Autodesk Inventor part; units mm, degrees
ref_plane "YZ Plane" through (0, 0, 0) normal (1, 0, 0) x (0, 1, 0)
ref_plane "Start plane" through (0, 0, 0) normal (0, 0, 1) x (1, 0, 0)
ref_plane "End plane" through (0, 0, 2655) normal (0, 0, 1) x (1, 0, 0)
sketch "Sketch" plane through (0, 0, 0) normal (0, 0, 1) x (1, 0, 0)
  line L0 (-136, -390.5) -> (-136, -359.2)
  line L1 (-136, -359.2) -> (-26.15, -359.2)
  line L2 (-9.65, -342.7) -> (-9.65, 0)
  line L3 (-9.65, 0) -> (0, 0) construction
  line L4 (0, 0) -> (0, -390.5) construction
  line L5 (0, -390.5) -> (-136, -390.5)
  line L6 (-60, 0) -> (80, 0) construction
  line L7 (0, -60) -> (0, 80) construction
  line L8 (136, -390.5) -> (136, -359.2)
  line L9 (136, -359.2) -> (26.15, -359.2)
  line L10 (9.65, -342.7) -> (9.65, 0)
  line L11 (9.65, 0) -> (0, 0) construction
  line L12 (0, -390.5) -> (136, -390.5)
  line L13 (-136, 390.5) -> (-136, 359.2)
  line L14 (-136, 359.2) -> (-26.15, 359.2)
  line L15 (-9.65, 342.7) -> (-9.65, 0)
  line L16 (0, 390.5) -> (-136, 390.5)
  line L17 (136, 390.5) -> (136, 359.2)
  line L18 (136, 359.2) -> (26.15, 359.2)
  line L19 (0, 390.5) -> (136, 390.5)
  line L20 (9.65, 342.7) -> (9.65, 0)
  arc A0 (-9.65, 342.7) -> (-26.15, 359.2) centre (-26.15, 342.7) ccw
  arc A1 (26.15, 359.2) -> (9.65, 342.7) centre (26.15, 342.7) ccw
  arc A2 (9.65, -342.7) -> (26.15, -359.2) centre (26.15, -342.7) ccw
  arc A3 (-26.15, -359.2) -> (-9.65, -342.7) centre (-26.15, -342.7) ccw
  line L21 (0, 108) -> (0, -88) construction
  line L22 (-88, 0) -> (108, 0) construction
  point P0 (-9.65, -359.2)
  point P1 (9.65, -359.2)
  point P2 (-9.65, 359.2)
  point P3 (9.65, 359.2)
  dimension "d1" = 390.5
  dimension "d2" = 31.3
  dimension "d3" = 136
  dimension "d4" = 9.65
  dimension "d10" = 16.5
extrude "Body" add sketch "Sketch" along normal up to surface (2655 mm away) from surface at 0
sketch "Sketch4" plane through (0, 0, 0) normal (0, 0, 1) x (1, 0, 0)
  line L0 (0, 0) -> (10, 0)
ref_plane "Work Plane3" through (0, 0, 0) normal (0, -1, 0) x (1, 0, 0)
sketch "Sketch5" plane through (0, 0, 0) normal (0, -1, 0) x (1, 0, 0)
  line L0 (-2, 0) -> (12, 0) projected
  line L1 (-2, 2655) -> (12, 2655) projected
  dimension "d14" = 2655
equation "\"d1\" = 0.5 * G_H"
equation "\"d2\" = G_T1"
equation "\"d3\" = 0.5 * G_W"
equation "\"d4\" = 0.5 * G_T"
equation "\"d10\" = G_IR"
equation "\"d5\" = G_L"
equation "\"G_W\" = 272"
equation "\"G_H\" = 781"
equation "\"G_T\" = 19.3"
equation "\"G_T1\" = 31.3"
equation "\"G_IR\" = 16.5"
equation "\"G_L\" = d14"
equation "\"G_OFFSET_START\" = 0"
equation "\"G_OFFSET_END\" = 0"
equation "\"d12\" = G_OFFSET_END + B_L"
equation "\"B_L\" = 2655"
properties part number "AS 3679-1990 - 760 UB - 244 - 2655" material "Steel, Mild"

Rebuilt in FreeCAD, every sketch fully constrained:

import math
import FreeCAD as App
import Part
import Sketcher
Q = App.Units.Quantity

doc = App.newDocument("Part")
body = doc.addObject("PartDesign::Body", "Body")

sketch1 = body.newObject("Sketcher::SketchObject", "Sketch")
sketch1.AttachmentSupport = (doc.getObject("XY_Plane"), [""])
sketch1.MapMode = "FlatFace"
sketch1.addGeometry([
    Part.LineSegment(App.Vector(-136, -359, 0), App.Vector(-136, -390, 0)),
    Part.LineSegment(App.Vector(-136, -390, 0), App.Vector(136, -390, 0)),
    Part.LineSegment(App.Vector(136, -390, 0), App.Vector(136, -359, 0)),
    Part.LineSegment(App.Vector(136, -359, 0), App.Vector(26, -359, 0)),
    Part.ArcOfCircle(Part.Circle(App.Vector(26, -343, 0), App.Vector(0, 0, 1), 16), math.radians(180), math.radians(270)),
    Part.LineSegment(App.Vector(10, -343, 0), App.Vector(10, 343, 0)),
    Part.ArcOfCircle(Part.Circle(App.Vector(26, 343, 0), App.Vector(0, 0, 1), 16), math.radians(90), math.radians(180)),
    Part.LineSegment(App.Vector(26, 359, 0), App.Vector(136, 359, 0)),
    Part.LineSegment(App.Vector(136, 359, 0), App.Vector(136, 390, 0)),
    Part.LineSegment(App.Vector(136, 390, 0), App.Vector(-136, 390, 0)),
    Part.LineSegment(App.Vector(-136, 390, 0), App.Vector(-136, 359, 0)),
    Part.LineSegment(App.Vector(-136, 359, 0), App.Vector(-26, 359, 0)),
    Part.ArcOfCircle(Part.Circle(App.Vector(-26, 343, 0), App.Vector(0, 0, 1), 16), math.radians(0), math.radians(90)),
    Part.LineSegment(App.Vector(-10, 343, 0), App.Vector(-10, -343, 0)),
    Part.ArcOfCircle(Part.Circle(App.Vector(-26, -343, 0), App.Vector(0, 0, 1), 16), math.radians(-90), math.radians(0)),
    Part.LineSegment(App.Vector(-26, -359, 0), App.Vector(-136, -359, 0)),
], False)
sketch1.addConstraint([
    Sketcher.Constraint("Coincident", 0, 2, 1, 1),
    Sketcher.Constraint("Coincident", 1, 2, 2, 1),
    Sketcher.Constraint("Coincident", 2, 2, 3, 1),
    Sketcher.Constraint("Tangent", 3, 2, 4, 2),
    Sketcher.Constraint("Tangent", 4, 1, 5, 1),
    Sketcher.Constraint("Tangent", 5, 2, 6, 2),
    Sketcher.Constraint("Tangent", 6, 1, 7, 1),
    Sketcher.Constraint("Coincident", 7, 2, 8, 1),
    Sketcher.Constraint("Coincident", 8, 2, 9, 1),
    Sketcher.Constraint("Coincident", 9, 2, 10, 1),
    Sketcher.Constraint("Coincident", 10, 2, 11, 1),
    Sketcher.Constraint("Tangent", 11, 2, 12, 2),
    Sketcher.Constraint("Tangent", 12, 1, 13, 1),
    Sketcher.Constraint("Tangent", 13, 2, 14, 2),
    Sketcher.Constraint("Tangent", 14, 1, 15, 1),
    Sketcher.Constraint("Coincident", 15, 2, 0, 1),
    Sketcher.Constraint("Vertical", 0),
    Sketcher.Constraint("Horizontal", 1),
    Sketcher.Constraint("Vertical", 2),
    Sketcher.Constraint("Horizontal", 3),
    Sketcher.Constraint("Vertical", 5),
    Sketcher.Constraint("Horizontal", 7),
    Sketcher.Constraint("Vertical", 8),
    Sketcher.Constraint("Horizontal", 9),
    Sketcher.Constraint("Vertical", 10),
    Sketcher.Constraint("Horizontal", 11),
    Sketcher.Constraint("Vertical", 13),
    Sketcher.Constraint("Horizontal", 15),
    Sketcher.Constraint("Equal", 4, 6),
    Sketcher.Constraint("Equal", 6, 12),
    Sketcher.Constraint("Equal", 12, 14),
    Sketcher.Constraint("Symmetric", 4, 3, 12, 3, -1, 1),
    Sketcher.Constraint("Symmetric", 0, 2, 8, 2, -1, 1),
    Sketcher.Constraint("Symmetric", 7, 2, 10, 2, -2),
    Sketcher.Constraint("Symmetric", 2, 2, 15, 2, -2),
    Sketcher.Constraint("Radius", 4, Q("16.5 mm")),
    Sketcher.Constraint("DistanceY", 0, 2, 0, 1, Q("31.3 mm")),
    Sketcher.Constraint("DistanceX", 0, 2, -1, 1, Q("136 mm")),
    Sketcher.Constraint("DistanceY", 0, 2, -1, 1, Q("390.5 mm")),
    Sketcher.Constraint("DistanceX", -1, 1, 4, 1, Q("9.65 mm")),
])
pad1 = body.newObject("PartDesign::Pad", "Pad")
pad1.Profile = sketch1
pad1.Length = 2655

doc.recompute()
